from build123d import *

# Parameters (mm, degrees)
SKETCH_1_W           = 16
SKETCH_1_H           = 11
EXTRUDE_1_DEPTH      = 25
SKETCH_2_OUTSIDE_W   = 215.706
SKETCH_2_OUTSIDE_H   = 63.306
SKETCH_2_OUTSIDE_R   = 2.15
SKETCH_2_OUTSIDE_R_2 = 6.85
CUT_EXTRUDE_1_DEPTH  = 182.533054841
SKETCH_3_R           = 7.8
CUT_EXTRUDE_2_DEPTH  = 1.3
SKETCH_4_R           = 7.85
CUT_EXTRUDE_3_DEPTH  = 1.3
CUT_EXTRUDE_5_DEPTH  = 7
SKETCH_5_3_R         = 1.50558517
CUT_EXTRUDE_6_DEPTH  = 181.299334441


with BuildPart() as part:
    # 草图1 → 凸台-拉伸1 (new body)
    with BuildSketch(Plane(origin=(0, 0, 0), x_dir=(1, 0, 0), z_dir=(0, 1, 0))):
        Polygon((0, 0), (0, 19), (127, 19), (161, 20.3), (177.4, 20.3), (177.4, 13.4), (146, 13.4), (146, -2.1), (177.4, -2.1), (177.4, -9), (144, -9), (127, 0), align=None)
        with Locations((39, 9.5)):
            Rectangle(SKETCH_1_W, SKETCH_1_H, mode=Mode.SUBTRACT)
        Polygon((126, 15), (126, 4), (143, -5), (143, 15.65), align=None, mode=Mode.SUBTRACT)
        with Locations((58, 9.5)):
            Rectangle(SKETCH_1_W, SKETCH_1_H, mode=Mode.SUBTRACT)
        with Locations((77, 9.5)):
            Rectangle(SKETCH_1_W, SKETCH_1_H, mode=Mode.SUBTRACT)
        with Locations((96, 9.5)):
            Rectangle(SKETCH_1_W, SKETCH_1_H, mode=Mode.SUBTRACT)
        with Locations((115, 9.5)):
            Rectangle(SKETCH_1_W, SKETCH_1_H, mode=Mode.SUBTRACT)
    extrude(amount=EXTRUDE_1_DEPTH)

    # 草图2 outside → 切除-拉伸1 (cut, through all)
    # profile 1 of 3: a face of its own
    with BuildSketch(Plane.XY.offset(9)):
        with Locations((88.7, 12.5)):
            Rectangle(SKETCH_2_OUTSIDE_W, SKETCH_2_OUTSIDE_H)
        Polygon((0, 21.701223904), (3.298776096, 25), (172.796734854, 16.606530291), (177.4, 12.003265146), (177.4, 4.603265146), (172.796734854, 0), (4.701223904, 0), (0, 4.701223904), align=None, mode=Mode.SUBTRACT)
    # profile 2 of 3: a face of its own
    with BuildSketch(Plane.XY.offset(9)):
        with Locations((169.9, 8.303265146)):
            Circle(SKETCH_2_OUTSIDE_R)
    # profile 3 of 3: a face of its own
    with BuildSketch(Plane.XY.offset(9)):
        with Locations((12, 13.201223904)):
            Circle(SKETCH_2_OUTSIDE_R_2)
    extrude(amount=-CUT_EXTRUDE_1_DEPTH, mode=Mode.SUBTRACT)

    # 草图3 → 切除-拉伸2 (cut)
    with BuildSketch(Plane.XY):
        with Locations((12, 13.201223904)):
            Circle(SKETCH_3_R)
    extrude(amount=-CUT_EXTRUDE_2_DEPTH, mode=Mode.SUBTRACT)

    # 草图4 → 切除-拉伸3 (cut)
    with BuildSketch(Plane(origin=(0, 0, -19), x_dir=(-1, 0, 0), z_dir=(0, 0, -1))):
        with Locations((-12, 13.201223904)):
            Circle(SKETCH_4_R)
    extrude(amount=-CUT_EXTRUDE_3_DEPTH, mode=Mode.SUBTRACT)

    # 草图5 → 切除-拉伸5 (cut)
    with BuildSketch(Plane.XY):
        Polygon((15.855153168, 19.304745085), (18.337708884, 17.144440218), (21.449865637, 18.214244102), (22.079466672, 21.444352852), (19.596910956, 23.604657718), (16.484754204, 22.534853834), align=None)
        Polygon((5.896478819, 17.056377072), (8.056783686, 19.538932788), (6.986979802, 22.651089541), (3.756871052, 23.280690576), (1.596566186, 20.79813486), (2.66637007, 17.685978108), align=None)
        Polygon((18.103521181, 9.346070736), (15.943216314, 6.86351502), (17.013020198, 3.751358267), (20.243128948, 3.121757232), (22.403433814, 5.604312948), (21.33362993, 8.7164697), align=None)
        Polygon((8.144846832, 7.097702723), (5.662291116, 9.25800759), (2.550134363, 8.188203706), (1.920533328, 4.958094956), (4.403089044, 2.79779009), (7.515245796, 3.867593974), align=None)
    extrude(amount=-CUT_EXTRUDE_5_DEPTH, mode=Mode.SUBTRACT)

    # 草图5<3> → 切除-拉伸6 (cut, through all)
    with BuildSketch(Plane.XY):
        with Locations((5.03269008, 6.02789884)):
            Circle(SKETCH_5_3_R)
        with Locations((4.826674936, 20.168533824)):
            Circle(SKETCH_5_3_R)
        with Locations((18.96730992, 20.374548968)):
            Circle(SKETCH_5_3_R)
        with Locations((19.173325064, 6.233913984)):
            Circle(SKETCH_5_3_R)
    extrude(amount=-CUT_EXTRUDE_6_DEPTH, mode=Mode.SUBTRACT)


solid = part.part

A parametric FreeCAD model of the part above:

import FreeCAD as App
import Part
import Sketcher
Q = App.Units.Quantity

doc = App.newDocument("Part")
body = doc.addObject("PartDesign::Body", "Body")

sketch1 = body.newObject("Sketcher::SketchObject", "Sketch")
sketch1.AttachmentSupport = (doc.getObject("XZ_Plane"), [""])
sketch1.MapMode = "FlatFace"
sketch1.addGeometry(Part.LineSegment(App.Vector(0, -19, 0), App.Vector(0, 0, 0)), False)
sketch1.addGeometry(Part.LineSegment(App.Vector(0, 0, 0), App.Vector(127, 0, 0)), False)
sketch1.addGeometry(Part.LineSegment(App.Vector(127, 0, 0), App.Vector(144, 9, 0)), False)
sketch1.addGeometry(Part.LineSegment(App.Vector(144, 9, 0), App.Vector(177, 9, 0)), False)
sketch1.addGeometry(Part.LineSegment(App.Vector(177, 9, 0), App.Vector(177, 2, 0)), False)
sketch1.addGeometry(Part.LineSegment(App.Vector(177, 2, 0), App.Vector(146, 2, 0)), False)
sketch1.addGeometry(Part.LineSegment(App.Vector(146, 2, 0), App.Vector(146, -13, 0)), False)
sketch1.addGeometry(Part.LineSegment(App.Vector(146, -13, 0), App.Vector(177, -13, 0)), False)
sketch1.addGeometry(Part.LineSegment(App.Vector(177, -13, 0), App.Vector(177, -20, 0)), False)
sketch1.addGeometry(Part.LineSegment(App.Vector(177, -20, 0), App.Vector(161, -20, 0)), False)
sketch1.addGeometry(Part.LineSegment(App.Vector(161, -20, 0), App.Vector(127, -19, 0)), False)
sketch1.addGeometry(Part.LineSegment(App.Vector(127, -19, 0), App.Vector(0, -19, 0)), False)
sketch1.addGeometry(Part.LineSegment(App.Vector(126, -15, 0), App.Vector(143, -16, 0)), False)
sketch1.addGeometry(Part.LineSegment(App.Vector(143, -16, 0), App.Vector(143, 5, 0)), False)
sketch1.addGeometry(Part.LineSegment(App.Vector(143, 5, 0), App.Vector(126, -4, 0)), False)
sketch1.addGeometry(Part.LineSegment(App.Vector(126, -4, 0), App.Vector(126, -15, 0)), False)
sketch1.addGeometry(Part.LineSegment(App.Vector(107, -4, 0), App.Vector(107, -15, 0)), False)
sketch1.addGeometry(Part.LineSegment(App.Vector(107, -15, 0), App.Vector(123, -15, 0)), False)
sketch1.addGeometry(Part.LineSegment(App.Vector(123, -15, 0), App.Vector(123, -4, 0)), False)
sketch1.addGeometry(Part.LineSegment(App.Vector(123, -4, 0), App.Vector(107, -4, 0)), False)
sketch1.addGeometry(Part.LineSegment(App.Vector(88, -4, 0), App.Vector(88, -15, 0)), False)
sketch1.addGeometry(Part.LineSegment(App.Vector(88, -15, 0), App.Vector(104, -15, 0)), False)
sketch1.addGeometry(Part.LineSegment(App.Vector(104, -15, 0), App.Vector(104, -4, 0)), False)
sketch1.addGeometry(Part.LineSegment(App.Vector(104, -4, 0), App.Vector(88, -4, 0)), False)
sketch1.addGeometry(Part.LineSegment(App.Vector(69, -4, 0), App.Vector(69, -15, 0)), False)
sketch1.addGeometry(Part.LineSegment(App.Vector(69, -15, 0), App.Vector(85, -15, 0)), False)
sketch1.addGeometry(Part.LineSegment(App.Vector(85, -15, 0), App.Vector(85, -4, 0)), False)
sketch1.addGeometry(Part.LineSegment(App.Vector(85, -4, 0), App.Vector(69, -4, 0)), False)
sketch1.addGeometry(Part.LineSegment(App.Vector(50, -4, 0), App.Vector(50, -15, 0)), False)
sketch1.addGeometry(Part.LineSegment(App.Vector(50, -15, 0), App.Vector(66, -15, 0)), False)
sketch1.addGeometry(Part.LineSegment(App.Vector(66, -15, 0), App.Vector(66, -4, 0)), False)
sketch1.addGeometry(Part.LineSegment(App.Vector(66, -4, 0), App.Vector(50, -4, 0)), False)
sketch1.addGeometry(Part.LineSegment(App.Vector(31, -4, 0), App.Vector(31, -15, 0)), False)
sketch1.addGeometry(Part.LineSegment(App.Vector(31, -15, 0), App.Vector(47, -15, 0)), False)
sketch1.addGeometry(Part.LineSegment(App.Vector(47, -15, 0), App.Vector(47, -4, 0)), False)
sketch1.addGeometry(Part.LineSegment(App.Vector(47, -4, 0), App.Vector(31, -4, 0)), False)
sketch1.addConstraint(Sketcher.Constraint("Coincident", 0, 2, 1, 1))
sketch1.addConstraint(Sketcher.Constraint("Coincident", 1, 2, 2, 1))
sketch1.addConstraint(Sketcher.Constraint("Coincident", 2, 2, 3, 1))
sketch1.addConstraint(Sketcher.Constraint("Coincident", 3, 2, 4, 1))
sketch1.addConstraint(Sketcher.Constraint("Coincident", 4, 2, 5, 1))
sketch1.addConstraint(Sketcher.Constraint("Coincident", 5, 2, 6, 1))
sketch1.addConstraint(Sketcher.Constraint("Coincident", 6, 2, 7, 1))
sketch1.addConstraint(Sketcher.Constraint("Coincident", 7, 2, 8, 1))
sketch1.addConstraint(Sketcher.Constraint("Coincident", 8, 2, 9, 1))
sketch1.addConstraint(Sketcher.Constraint("Coincident", 9, 2, 10, 1))
sketch1.addConstraint(Sketcher.Constraint("Coincident", 10, 2, 11, 1))
sketch1.addConstraint(Sketcher.Constraint("Coincident", 11, 2, 0, 1))
sketch1.addConstraint(Sketcher.Constraint("Coincident", 12, 2, 13, 1))
sketch1.addConstraint(Sketcher.Constraint("Coincident", 13, 2, 14, 1))
sketch1.addConstraint(Sketcher.Constraint("Coincident", 14, 2, 15, 1))
sketch1.addConstraint(Sketcher.Constraint("Coincident", 15, 2, 12, 1))
sketch1.addConstraint(Sketcher.Constraint("Coincident", 16, 2, 17, 1))
sketch1.addConstraint(Sketcher.Constraint("Coincident", 17, 2, 18, 1))
sketch1.addConstraint(Sketcher.Constraint("Coincident", 18, 2, 19, 1))
sketch1.addConstraint(Sketcher.Constraint("Coincident", 19, 2, 16, 1))
sketch1.addConstraint(Sketcher.Constraint("Coincident", 20, 2, 21, 1))
sketch1.addConstraint(Sketcher.Constraint("Coincident", 21, 2, 22, 1))
sketch1.addConstraint(Sketcher.Constraint("Coincident", 22, 2, 23, 1))
sketch1.addConstraint(Sketcher.Constraint("Coincident", 23, 2, 20, 1))
sketch1.addConstraint(Sketcher.Constraint("Coincident", 24, 2, 25, 1))
sketch1.addConstraint(Sketcher.Constraint("Coincident", 25, 2, 26, 1))
sketch1.addConstraint(Sketcher.Constraint("Coincident", 26, 2, 27, 1))
sketch1.addConstraint(Sketcher.Constraint("Coincident", 27, 2, 24, 1))
sketch1.addConstraint(Sketcher.Constraint("Coincident", 28, 2, 29, 1))
sketch1.addConstraint(Sketcher.Constraint("Coincident", 29, 2, 30, 1))
sketch1.addConstraint(Sketcher.Constraint("Coincident", 30, 2, 31, 1))
sketch1.addConstraint(Sketcher.Constraint("Coincident", 31, 2, 28, 1))
sketch1.addConstraint(Sketcher.Constraint("Coincident", 32, 2, 33, 1))
sketch1.addConstraint(Sketcher.Constraint("Coincident", 33, 2, 34, 1))
sketch1.addConstraint(Sketcher.Constraint("Coincident", 34, 2, 35, 1))
sketch1.addConstraint(Sketcher.Constraint("Coincident", 35, 2, 32, 1))
sketch1.addConstraint(Sketcher.Constraint("Vertical", 0))
sketch1.addConstraint(Sketcher.Constraint("Horizontal", 1))
sketch1.addConstraint(Sketcher.Constraint("Horizontal", 3))
sketch1.addConstraint(Sketcher.Constraint("Vertical", 4))
sketch1.addConstraint(Sketcher.Constraint("Horizontal", 5))
sketch1.addConstraint(Sketcher.Constraint("Vertical", 6))
sketch1.addConstraint(Sketcher.Constraint("Horizontal", 7))
sketch1.addConstraint(Sketcher.Constraint("Vertical", 8))
sketch1.addConstraint(Sketcher.Constraint("Horizontal", 9))
sketch1.addConstraint(Sketcher.Constraint("Horizontal", 11))
sketch1.addConstraint(Sketcher.Constraint("Vertical", 13))
sketch1.addConstraint(Sketcher.Constraint("Vertical", 15))
sketch1.addConstraint(Sketcher.Constraint("Vertical", 16))
sketch1.addConstraint(Sketcher.Constraint("Horizontal", 17))
sketch1.addConstraint(Sketcher.Constraint("Vertical", 18))
sketch1.addConstraint(Sketcher.Constraint("Horizontal", 19))
sketch1.addConstraint(Sketcher.Constraint("Vertical", 20))
sketch1.addConstraint(Sketcher.Constraint("Horizontal", 21))
sketch1.addConstraint(Sketcher.Constraint("Vertical", 22))
sketch1.addConstraint(Sketcher.Constraint("Horizontal", 23))
sketch1.addConstraint(Sketcher.Constraint("Vertical", 24))
sketch1.addConstraint(Sketcher.Constraint("Horizontal", 25))
sketch1.addConstraint(Sketcher.Constraint("Vertical", 26))
sketch1.addConstraint(Sketcher.Constraint("Horizontal", 27))
sketch1.addConstraint(Sketcher.Constraint("Vertical", 28))
sketch1.addConstraint(Sketcher.Constraint("Horizontal", 29))
sketch1.addConstraint(Sketcher.Constraint("Vertical", 30))
sketch1.addConstraint(Sketcher.Constraint("Horizontal", 31))
sketch1.addConstraint(Sketcher.Constraint("Vertical", 32))
sketch1.addConstraint(Sketcher.Constraint("Horizontal", 33))
sketch1.addConstraint(Sketcher.Constraint("Vertical", 34))
sketch1.addConstraint(Sketcher.Constraint("Horizontal", 35))
sketch1.addConstraint(Sketcher.Constraint("Coincident", 0, 2, -1, 1))
sketch1.addConstraint(Sketcher.Constraint("Parallel", 10, 12))
sketch1.addConstraint(Sketcher.Constraint("Parallel", 2, 14))
sketch1.addConstraint(Sketcher.Constraint("Horizontal", 15, 2, 16, 2))
sketch1.addConstraint(Sketcher.Constraint("Horizontal", 14, 2, 18, 2))
sketch1.addConstraint(Sketcher.Constraint("Horizontal", 17, 2, 20, 2))
sketch1.addConstraint(Sketcher.Constraint("Horizontal", 19, 2, 22, 2))
sketch1.addConstraint(Sketcher.Constraint("Horizontal", 21, 2, 24, 2))
sketch1.addConstraint(Sketcher.Constraint("Horizontal", 23, 2, 26, 2))
sketch1.addConstraint(Sketcher.Constraint("Horizontal", 25, 2, 28, 2))
sketch1.addConstraint(Sketcher.Constraint("Horizontal", 27, 2, 30, 2))
sketch1.addConstraint(Sketcher.Constraint("Horizontal", 29, 2, 32, 2))
sketch1.addConstraint(Sketcher.Constraint("Horizontal", 31, 2, 34, 2))
sketch1.addConstraint(Sketcher.Constraint("Vertical", 4, 2, 7, 2))
sketch1.addConstraint(Sketcher.Constraint("Vertical", 1, 2, 10, 2))
sketch1.addConstraint(Sketcher.Constraint("Equal", 19, 21))
sketch1.addConstraint(Sketcher.Constraint("Equal", 23, 25))
sketch1.addConstraint(Sketcher.Constraint("Equal", 27, 29))
sketch1.addConstraint(Sketcher.Constraint("Equal", 31, 33))
sketch1.addConstraint(Sketcher.Constraint("Equal", 4, 8))
sketch1.addConstraint(Sketcher.Constraint("Equal", 2, 14))
sketch1.addConstraint(Sketcher.Constraint("DistanceX", 1, 1, 1, 2, Q("127 mm")))
sketch1.addConstraint(Sketcher.Constraint("DistanceX", 17, 1, 17, 2, Q("16 mm")))
sketch1.addConstraint(Sketcher.Constraint("DistanceY", 0, 1, 0, 2, Q("19 mm")))
sketch1.addConstraint(Sketcher.Constraint("DistanceY", 15, 2, 15, 1, Q("11 mm")))
sketch1.addConstraint(Sketcher.Constraint("DistanceX", 3, 1, 3, 2, Q("33.4 mm")))
sketch1.addConstraint(Sketcher.Constraint("DistanceX", 5, 2, 5, 1, Q("31.4 mm")))
sketch1.addConstraint(Sketcher.Constraint("DistanceX", 9, 2, 9, 1, Q("16.4 mm")))
sketch1.addConstraint(Sketcher.Constraint("DistanceY", 4, 2, 4, 1, Q("6.9 mm")))
sketch1.addConstraint(Sketcher.Constraint("DistanceY", 6, 2, 6, 1, Q("15.5 mm")))
sketch1.addConstraint(Sketcher.Constraint("DistanceX", -1, 1, 2, 2, Q("144 mm")))
sketch1.addConstraint(Sketcher.Constraint("DistanceY", -1, 1, 2, 2, Q("9 mm")))
sketch1.addConstraint(Sketcher.Constraint("DistanceX", -1, 1, 12, 2, Q("143 mm")))
sketch1.addConstraint(Sketcher.Constraint("DistanceY", -1, 1, 13, 2, Q("5 mm")))
sketch1.addConstraint(Sketcher.Constraint("DistanceX", -1, 1, 16, 2, Q("107 mm")))
sketch1.addConstraint(Sketcher.Constraint("DistanceX", -1, 1, 20, 2, Q("88 mm")))
sketch1.addConstraint(Sketcher.Constraint("DistanceX", -1, 1, 24, 2, Q("69 mm")))
sketch1.addConstraint(Sketcher.Constraint("DistanceX", -1, 1, 28, 2, Q("50 mm")))
sketch1.addConstraint(Sketcher.Constraint("DistanceX", -1, 1, 32, 2, Q("31 mm")))
pad1 = body.newObject("PartDesign::Pad", "Pad")
pad1.Profile = sketch1
pad1.Length = 25
pad1.Reversed = True

sketch2 = body.newObject("Sketcher::SketchObject", "Sketch001")
sketch2.AttachmentSupport = (doc.getObject("XY_Plane"), [""])
sketch2.MapMode = "FlatFace"
sketch2.AttachmentOffset = App.Placement(App.Vector(0, 0, 9), App.Rotation())
sketch2.addGeometry(Part.LineSegment(App.Vector(-19.2, 44.2, 0), App.Vector(-19.2, -19.2, 0)), False)
sketch2.addGeometry(Part.LineSegment(App.Vector(-19.2, -19.2, 0), App.Vector(196.6, -19.2, 0)), False)
sketch2.addGeometry(Part.LineSegment(App.Vector(196.6, -19.2, 0), App.Vector(196.6, 44.2, 0)), False)
sketch2.addGeometry(Part.LineSegment(App.Vector(196.6, 44.2, 0), App.Vector(-19.2, 44.2, 0)), False)
sketch2.addGeometry(Part.LineSegment(App.Vector(0, 4.7, 0), App.Vector(0, 21.7, 0)), False)
sketch2.addGeometry(Part.LineSegment(App.Vector(0, 21.7, 0), App.Vector(3.3, 25, 0)), False)
sketch2.addGeometry(Part.LineSegment(App.Vector(3.3, 25, 0), App.Vector(172.8, 16.6, 0)), False)
sketch2.addGeometry(Part.LineSegment(App.Vector(172.8, 16.6, 0), App.Vector(177.4, 12, 0)), False)
sketch2.addGeometry(Part.LineSegment(App.Vector(177.4, 12, 0), App.Vector(177.4, 4.6, 0)), False)
sketch2.addGeometry(Part.LineSegment(App.Vector(177.4, 4.6, 0), App.Vector(172.8, 0, 0)), False)
sketch2.addGeometry(Part.LineSegment(App.Vector(172.8, 0, 0), App.Vector(4.7, 0, 0)), False)
sketch2.addGeometry(Part.LineSegment(App.Vector(4.7, 0, 0), App.Vector(0, 4.7, 0)), False)
sketch2.addGeometry(Part.Circle(App.Vector(169.9, 8.3, 0), App.Vector(0, 0, 1), 2.1), False)
sketch2.addGeometry(Part.Circle(App.Vector(12, 13.2, 0), App.Vector(0, 0, 1), 6.8), False)
sketch2.addConstraint(Sketcher.Constraint("Coincident", 0, 2, 1, 1))
sketch2.addConstraint(Sketcher.Constraint("Coincident", 1, 2, 2, 1))
sketch2.addConstraint(Sketcher.Constraint("Coincident", 2, 2, 3, 1))
sketch2.addConstraint(Sketcher.Constraint("Coincident", 3, 2, 0, 1))
sketch2.addConstraint(Sketcher.Constraint("Coincident", 4, 2, 5, 1))
sketch2.addConstraint(Sketcher.Constraint("Coincident", 5, 2, 6, 1))
sketch2.addConstraint(Sketcher.Constraint("Coincident", 6, 2, 7, 1))
sketch2.addConstraint(Sketcher.Constraint("Coincident", 7, 2, 8, 1))
sketch2.addConstraint(Sketcher.Constraint("Coincident", 8, 2, 9, 1))
sketch2.addConstraint(Sketcher.Constraint("Coincident", 9, 2, 10, 1))
sketch2.addConstraint(Sketcher.Constraint("Coincident", 10, 2, 11, 1))
sketch2.addConstraint(Sketcher.Constraint("Coincident", 11, 2, 4, 1))
sketch2.addConstraint(Sketcher.Constraint("Vertical", 0))
sketch2.addConstraint(Sketcher.Constraint("Horizontal", 1))
sketch2.addConstraint(Sketcher.Constraint("Vertical", 2))
sketch2.addConstraint(Sketcher.Constraint("Horizontal", 3))
sketch2.addConstraint(Sketcher.Constraint("Vertical", 4))
sketch2.addConstraint(Sketcher.Constraint("Vertical", 8))
sketch2.addConstraint(Sketcher.Constraint("Horizontal", 10))
sketch2.addConstraint(Sketcher.Constraint("PointOnObject", 4, 2, -2))
sketch2.addConstraint(Sketcher.Constraint("PointOnObject", 9, 2, -1))
sketch2.addConstraint(Sketcher.Constraint("Perpendicular", 5, 7))
sketch2.addConstraint(Sketcher.Constraint("Perpendicular", 7, 9))
sketch2.addConstraint(Sketcher.Constraint("Perpendicular", 9, 11))
sketch2.addConstraint(Sketcher.Constraint("Vertical", 6, 2, 9, 2))
sketch2.addConstraint(Sketcher.Constraint("Equal", 7, 9))
sketch2.addConstraint(Sketcher.Constraint("Diameter", 12, Q("4.3 mm")))
sketch2.addConstraint(Sketcher.Constraint("Diameter", 13, Q("13.7 mm")))
sketch2.addConstraint(Sketcher.Constraint("DistanceY", 4, 1, 4, 2, Q("17 mm")))
sketch2.addConstraint(Sketcher.Constraint("DistanceY", 8, 2, 8, 1, Q("7.4 mm")))
sketch2.addConstraint(Sketcher.Constraint("DistanceX", -1, 1, 13, 3, Q("12 mm")))
sketch2.addConstraint(Sketcher.Constraint("DistanceY", -1, 1, 5, 2, Q("25 mm")))
sketch2.addConstraint(Sketcher.Constraint("DistanceX", -1, 1, 12, 3, Q("169.9 mm")))
sketch2.addConstraint(Sketcher.Constraint("DistanceX", -1, 1, 7, 2, Q("177.4 mm")))
sketch2.addConstraint(Sketcher.Constraint("DistanceY", 13, 3, 4, 2, Q("8.5 mm")))
sketch2.addConstraint(Sketcher.Constraint("DistanceY", 12, 3, 7, 2, Q("3.7 mm")))
sketch2.addConstraint(Sketcher.Constraint("Distance", 7, Q("6.51 mm")))
sketch2.addConstraint(Sketcher.Constraint("DistanceX", 1, 1, 1, 2, Q("215.706 mm")))
sketch2.addConstraint(Sketcher.Constraint("DistanceY", 0, 2, 0, 1, Q("63.306 mm")))
sketch2.addConstraint(Sketcher.Constraint("DistanceX", 0, 2, -1, 1, Q("19.153 mm")))
sketch2.addConstraint(Sketcher.Constraint("DistanceY", 0, 2, -1, 1, Q("19.153 mm")))
sketch2.addConstraint(Sketcher.Constraint("DistanceX", 10, 2, 10, 1, Q("168.095511 mm")))
pocket1 = body.newObject("PartDesign::Pocket", "Pocket")
pocket1.Profile = sketch2
pocket1.Length = 182.533055

sketch3 = body.newObject("Sketcher::SketchObject", "Sketch002")
sketch3.AttachmentSupport = (doc.getObject("XY_Plane"), [""])
sketch3.MapMode = "FlatFace"
sketch3.addGeometry(Part.Circle(App.Vector(12, 13, 0), App.Vector(0, 0, 1), 8), False)
sketch3.addConstraint(Sketcher.Constraint("Diameter", 0, Q("15.6 mm")))
sketch3.addConstraint(Sketcher.Constraint("DistanceX", -1, 1, 0, 3, Q("12 mm")))
sketch3.addConstraint(Sketcher.Constraint("DistanceY", -1, 1, 0, 3, Q("13.201224 mm")))
pocket2 = body.newObject("PartDesign::Pocket", "Pocket001")
pocket2.Profile = sketch3
pocket2.Length = 1.3

sketch4 = body.newObject("Sketcher::SketchObject", "Sketch003")
sketch4.AttachmentSupport = (doc.getObject("XY_Plane"), [""])
sketch4.MapMode = "FlatFace"
sketch4.AttachmentOffset = App.Placement(App.Vector(0, 0, -19), App.Rotation())
sketch4.addGeometry(Part.Circle(App.Vector(12, 13, 0), App.Vector(0, 0, 1), 8), False)
sketch4.addConstraint(Sketcher.Constraint("Diameter", 0, Q("15.7 mm")))
sketch4.addConstraint(Sketcher.Constraint("DistanceX", -1, 1, 0, 3, Q("12 mm")))
sketch4.addConstraint(Sketcher.Constraint("DistanceY", -1, 1, 0, 3, Q("13.201224 mm")))
pocket3 = body.newObject("PartDesign::Pocket", "Pocket002")
pocket3.Profile = sketch4
pocket3.Length = 1.3
pocket3.Reversed = True

sketch5 = body.newObject("Sketcher::SketchObject", "Sketch004")
sketch5.AttachmentSupport = (doc.getObject("XY_Plane"), [""])
sketch5.MapMode = "FlatFace"
sketch5.addGeometry(Part.LineSegment(App.Vector(15.9, 19.3, 0), App.Vector(18.3, 17.1, 0)), False)
sketch5.addGeometry(Part.LineSegment(App.Vector(18.3, 17.1, 0), App.Vector(21.4, 18.2, 0)), False)
sketch5.addGeometry(Part.LineSegment(App.Vector(21.4, 18.2, 0), App.Vector(22.1, 21.4, 0)), False)
sketch5.addGeometry(Part.LineSegment(App.Vector(22.1, 21.4, 0), App.Vector(19.6, 23.6, 0)), False)
sketch5.addGeometry(Part.LineSegment(App.Vector(19.6, 23.6, 0), App.Vector(16.5, 22.5, 0)), False)
sketch5.addGeometry(Part.LineSegment(App.Vector(16.5, 22.5, 0), App.Vector(15.9, 19.3, 0)), False)
sketch5.addGeometry(Part.LineSegment(App.Vector(5.9, 17.1, 0), App.Vector(8.1, 19.5, 0)), False)
sketch5.addGeometry(Part.LineSegment(App.Vector(8.1, 19.5, 0), App.Vector(7, 22.7, 0)), False)
sketch5.addGeometry(Part.LineSegment(App.Vector(7, 22.7, 0), App.Vector(3.8, 23.3, 0)), False)
sketch5.addGeometry(Part.LineSegment(App.Vector(3.8, 23.3, 0), App.Vector(1.6, 20.8, 0)), False)
sketch5.addGeometry(Part.LineSegment(App.Vector(1.6, 20.8, 0), App.Vector(2.7, 17.7, 0)), False)
sketch5.addGeometry(Part.LineSegment(App.Vector(2.7, 17.7, 0), App.Vector(5.9, 17.1, 0)), False)
sketch5.addGeometry(Part.LineSegment(App.Vector(18.1, 9.3, 0), App.Vector(15.9, 6.9, 0)), False)
sketch5.addGeometry(Part.LineSegment(App.Vector(15.9, 6.9, 0), App.Vector(17, 3.8, 0)), False)
sketch5.addGeometry(Part.LineSegment(App.Vector(17, 3.8, 0), App.Vector(20.2, 3.1, 0)), False)
sketch5.addGeometry(Part.LineSegment(App.Vector(20.2, 3.1, 0), App.Vector(22.4, 5.6, 0)), False)
sketch5.addGeometry(Part.LineSegment(App.Vector(22.4, 5.6, 0), App.Vector(21.3, 8.7, 0)), False)
sketch5.addGeometry(Part.LineSegment(App.Vector(21.3, 8.7, 0), App.Vector(18.1, 9.3, 0)), False)
sketch5.addGeometry(Part.LineSegment(App.Vector(8.1, 7.1, 0), App.Vector(5.7, 9.3, 0)), False)
sketch5.addGeometry(Part.LineSegment(App.Vector(5.7, 9.3, 0), App.Vector(2.6, 8.2, 0)), False)
sketch5.addGeometry(Part.LineSegment(App.Vector(2.6, 8.2, 0), App.Vector(1.9, 5, 0)), False)
sketch5.addGeometry(Part.LineSegment(App.Vector(1.9, 5, 0), App.Vector(4.4, 2.8, 0)), False)
sketch5.addGeometry(Part.LineSegment(App.Vector(4.4, 2.8, 0), App.Vector(7.5, 3.9, 0)), False)
sketch5.addGeometry(Part.LineSegment(App.Vector(7.5, 3.9, 0), App.Vector(8.1, 7.1, 0)), False)
sketch5.addConstraint(Sketcher.Constraint("Coincident", 0, 2, 1, 1))
sketch5.addConstraint(Sketcher.Constraint("Coincident", 1, 2, 2, 1))
sketch5.addConstraint(Sketcher.Constraint("Coincident", 2, 2, 3, 1))
sketch5.addConstraint(Sketcher.Constraint("Coincident", 3, 2, 4, 1))
sketch5.addConstraint(Sketcher.Constraint("Coincident", 4, 2, 5, 1))
sketch5.addConstraint(Sketcher.Constraint("Coincident", 5, 2, 0, 1))
sketch5.addConstraint(Sketcher.Constraint("Coincident", 6, 2, 7, 1))
sketch5.addConstraint(Sketcher.Constraint("Coincident", 7, 2, 8, 1))
sketch5.addConstraint(Sketcher.Constraint("Coincident", 8, 2, 9, 1))
sketch5.addConstraint(Sketcher.Constraint("Coincident", 9, 2, 10, 1))
sketch5.addConstraint(Sketcher.Constraint("Coincident", 10, 2, 11, 1))
sketch5.addConstraint(Sketcher.Constraint("Coincident", 11, 2, 6, 1))
sketch5.addConstraint(Sketcher.Constraint("Coincident", 12, 2, 13, 1))
sketch5.addConstraint(Sketcher.Constraint("Coincident", 13, 2, 14, 1))
sketch5.addConstraint(Sketcher.Constraint("Coincident", 14, 2, 15, 1))
sketch5.addConstraint(Sketcher.Constraint("Coincident", 15, 2, 16, 1))
sketch5.addConstraint(Sketcher.Constraint("Coincident", 16, 2, 17, 1))
sketch5.addConstraint(Sketcher.Constraint("Coincident", 17, 2, 12, 1))
sketch5.addConstraint(Sketcher.Constraint("Coincident", 18, 2, 19, 1))
sketch5.addConstraint(Sketcher.Constraint("Coincident", 19, 2, 20, 1))
sketch5.addConstraint(Sketcher.Constraint("Coincident", 20, 2, 21, 1))
sketch5.addConstraint(Sketcher.Constraint("Coincident", 21, 2, 22, 1))
sketch5.addConstraint(Sketcher.Constraint("Coincident", 22, 2, 23, 1))
sketch5.addConstraint(Sketcher.Constraint("Coincident", 23, 2, 18, 1))
sketch5.addConstraint(Sketcher.Constraint("Parallel", 0, 3))
sketch5.addConstraint(Sketcher.Constraint("Parallel", 1, 4))
sketch5.addConstraint(Sketcher.Constraint("Parallel", 2, 5))
sketch5.addConstraint(Sketcher.Constraint("Perpendicular", 3, 6))
sketch5.addConstraint(Sketcher.Constraint("Perpendicular", 4, 7))
sketch5.addConstraint(Sketcher.Constraint("Perpendicular", 5, 8))
sketch5.addConstraint(Sketcher.Constraint("Parallel", 6, 9))
sketch5.addConstraint(Sketcher.Constraint("Parallel", 7, 10))
sketch5.addConstraint(Sketcher.Constraint("Parallel", 8, 11))
sketch5.addConstraint(Sketcher.Constraint("Parallel", 9, 12))
sketch5.addConstraint(Sketcher.Constraint("Parallel", 10, 13))
sketch5.addConstraint(Sketcher.Constraint("Parallel", 11, 14))
sketch5.addConstraint(Sketcher.Constraint("Parallel", 12, 15))
sketch5.addConstraint(Sketcher.Constraint("Parallel", 13, 16))
sketch5.addConstraint(Sketcher.Constraint("Parallel", 14, 17))
sketch5.addConstraint(Sketcher.Constraint("Perpendicular", 15, 18))
sketch5.addConstraint(Sketcher.Constraint("Perpendicular", 16, 19))
sketch5.addConstraint(Sketcher.Constraint("Perpendicular", 17, 20))
sketch5.addConstraint(Sketcher.Constraint("Parallel", 18, 21))
sketch5.addConstraint(Sketcher.Constraint("Parallel", 19, 22))
sketch5.addConstraint(Sketcher.Constraint("Parallel", 20, 23))
sketch5.addConstraint(Sketcher.Constraint("Equal", 0, 1))
sketch5.addConstraint(Sketcher.Constraint("Equal", 1, 2))
sketch5.addConstraint(Sketcher.Constraint("Equal", 2, 3))
sketch5.addConstraint(Sketcher.Constraint("Equal", 5, 6))
sketch5.addConstraint(Sketcher.Constraint("Equal", 6, 7))
sketch5.addConstraint(Sketcher.Constraint("Equal", 7, 8))
sketch5.addConstraint(Sketcher.Constraint("Equal", 8, 9))
sketch5.addConstraint(Sketcher.Constraint("Equal", 11, 12))
sketch5.addConstraint(Sketcher.Constraint("Equal", 12, 13))
sketch5.addConstraint(Sketcher.Constraint("Equal", 13, 14))
sketch5.addConstraint(Sketcher.Constraint("Equal", 14, 15))
sketch5.addConstraint(Sketcher.Constraint("Equal", 17, 18))
sketch5.addConstraint(Sketcher.Constraint("Equal", 18, 19))
sketch5.addConstraint(Sketcher.Constraint("Equal", 19, 20))
sketch5.addConstraint(Sketcher.Constraint("Equal", 20, 21))
sketch5.addConstraint(Sketcher.Constraint("DistanceX", 1, 2, 2, 2, Q("0.629601 mm")))
sketch5.addConstraint(Sketcher.Constraint("DistanceY", 2, 2, 4, 2, Q("1.090501 mm")))
sketch5.addConstraint(Sketcher.Constraint("DistanceX", -1, 1, 0, 2, Q("18.337709 mm")))
sketch5.addConstraint(Sketcher.Constraint("DistanceY", -1, 1, 0, 2, Q("17.14444 mm")))
sketch5.addConstraint(Sketcher.Constraint("DistanceX", -1, 1, 3, 2, Q("19.596911 mm")))
sketch5.addConstraint(Sketcher.Constraint("DistanceX", -1, 1, 7, 2, Q("6.98698 mm")))
sketch5.addConstraint(Sketcher.Constraint("DistanceY", -1, 1, 7, 2, Q("22.65109 mm")))
sketch5.addConstraint(Sketcher.Constraint("DistanceX", -1, 1, 8, 2, Q("3.756871 mm")))
sketch5.addConstraint(Sketcher.Constraint("DistanceX", -1, 1, 13, 2, Q("17.01302 mm")))
sketch5.addConstraint(Sketcher.Constraint("DistanceY", -1, 1, 13, 2, Q("3.751358 mm")))
sketch5.addConstraint(Sketcher.Constraint("DistanceX", -1, 1, 18, 2, Q("5.662291 mm")))
sketch5.addConstraint(Sketcher.Constraint("DistanceY", -1, 1, 21, 2, Q("2.79779 mm")))
pocket4 = body.newObject("PartDesign::Pocket", "Pocket003")
pocket4.Profile = sketch5
pocket4.Length = 7

sketch6 = body.newObject("Sketcher::SketchObject", "Sketch005")
sketch6.AttachmentSupport = (doc.getObject("XY_Plane"), [""])
sketch6.MapMode = "FlatFace"
sketch6.addGeometry(Part.Circle(App.Vector(5, 6, 0), App.Vector(0, 0, 1), 1.5), False)
sketch6.addGeometry(Part.Circle(App.Vector(4.8, 20.2, 0), App.Vector(0, 0, 1), 1.5), False)
sketch6.addGeometry(Part.Circle(App.Vector(19, 20.4, 0), App.Vector(0, 0, 1), 1.5), False)
sketch6.addGeometry(Part.Circle(App.Vector(19.2, 6.2, 0), App.Vector(0, 0, 1), 1.5), False)
sketch6.addConstraint(Sketcher.Constraint("Equal", 0, 1))
sketch6.addConstraint(Sketcher.Constraint("Equal", 1, 2))
sketch6.addConstraint(Sketcher.Constraint("Equal", 2, 3))
sketch6.addConstraint(Sketcher.Constraint("Diameter", 0, Q("3.01117 mm")))
sketch6.addConstraint(Sketcher.Constraint("DistanceY", -1, 1, 0, 3, Q("6.027899 mm")))
sketch6.addConstraint(Sketcher.Constraint("DistanceX", -1, 1, 0, 3, Q("5.03269 mm")))
sketch6.addConstraint(Sketcher.Constraint("DistanceX", -1, 1, 2, 3, Q("18.96731 mm")))
sketch6.addConstraint(Sketcher.Constraint("DistanceY", -1, 1, 2, 3, Q("20.374549 mm")))
sketch6.addConstraint(Sketcher.Constraint("DistanceX", 1, 3, 3, 3, Q("14.34665 mm")))
sketch6.addConstraint(Sketcher.Constraint("DistanceY", 3, 3, 1, 3, Q("13.93462 mm")))
sketch6.addConstraint(Sketcher.Constraint("DistanceX", -1, 1, 1, 3, Q("4.826675 mm")))
sketch6.addConstraint(Sketcher.Constraint("DistanceY", -1, 1, 1, 3, Q("20.168534 mm")))
pocket5 = body.newObject("PartDesign::Pocket", "Pocket004")
pocket5.Profile = sketch6
pocket5.Type = "ThroughAll"

doc.recompute()
